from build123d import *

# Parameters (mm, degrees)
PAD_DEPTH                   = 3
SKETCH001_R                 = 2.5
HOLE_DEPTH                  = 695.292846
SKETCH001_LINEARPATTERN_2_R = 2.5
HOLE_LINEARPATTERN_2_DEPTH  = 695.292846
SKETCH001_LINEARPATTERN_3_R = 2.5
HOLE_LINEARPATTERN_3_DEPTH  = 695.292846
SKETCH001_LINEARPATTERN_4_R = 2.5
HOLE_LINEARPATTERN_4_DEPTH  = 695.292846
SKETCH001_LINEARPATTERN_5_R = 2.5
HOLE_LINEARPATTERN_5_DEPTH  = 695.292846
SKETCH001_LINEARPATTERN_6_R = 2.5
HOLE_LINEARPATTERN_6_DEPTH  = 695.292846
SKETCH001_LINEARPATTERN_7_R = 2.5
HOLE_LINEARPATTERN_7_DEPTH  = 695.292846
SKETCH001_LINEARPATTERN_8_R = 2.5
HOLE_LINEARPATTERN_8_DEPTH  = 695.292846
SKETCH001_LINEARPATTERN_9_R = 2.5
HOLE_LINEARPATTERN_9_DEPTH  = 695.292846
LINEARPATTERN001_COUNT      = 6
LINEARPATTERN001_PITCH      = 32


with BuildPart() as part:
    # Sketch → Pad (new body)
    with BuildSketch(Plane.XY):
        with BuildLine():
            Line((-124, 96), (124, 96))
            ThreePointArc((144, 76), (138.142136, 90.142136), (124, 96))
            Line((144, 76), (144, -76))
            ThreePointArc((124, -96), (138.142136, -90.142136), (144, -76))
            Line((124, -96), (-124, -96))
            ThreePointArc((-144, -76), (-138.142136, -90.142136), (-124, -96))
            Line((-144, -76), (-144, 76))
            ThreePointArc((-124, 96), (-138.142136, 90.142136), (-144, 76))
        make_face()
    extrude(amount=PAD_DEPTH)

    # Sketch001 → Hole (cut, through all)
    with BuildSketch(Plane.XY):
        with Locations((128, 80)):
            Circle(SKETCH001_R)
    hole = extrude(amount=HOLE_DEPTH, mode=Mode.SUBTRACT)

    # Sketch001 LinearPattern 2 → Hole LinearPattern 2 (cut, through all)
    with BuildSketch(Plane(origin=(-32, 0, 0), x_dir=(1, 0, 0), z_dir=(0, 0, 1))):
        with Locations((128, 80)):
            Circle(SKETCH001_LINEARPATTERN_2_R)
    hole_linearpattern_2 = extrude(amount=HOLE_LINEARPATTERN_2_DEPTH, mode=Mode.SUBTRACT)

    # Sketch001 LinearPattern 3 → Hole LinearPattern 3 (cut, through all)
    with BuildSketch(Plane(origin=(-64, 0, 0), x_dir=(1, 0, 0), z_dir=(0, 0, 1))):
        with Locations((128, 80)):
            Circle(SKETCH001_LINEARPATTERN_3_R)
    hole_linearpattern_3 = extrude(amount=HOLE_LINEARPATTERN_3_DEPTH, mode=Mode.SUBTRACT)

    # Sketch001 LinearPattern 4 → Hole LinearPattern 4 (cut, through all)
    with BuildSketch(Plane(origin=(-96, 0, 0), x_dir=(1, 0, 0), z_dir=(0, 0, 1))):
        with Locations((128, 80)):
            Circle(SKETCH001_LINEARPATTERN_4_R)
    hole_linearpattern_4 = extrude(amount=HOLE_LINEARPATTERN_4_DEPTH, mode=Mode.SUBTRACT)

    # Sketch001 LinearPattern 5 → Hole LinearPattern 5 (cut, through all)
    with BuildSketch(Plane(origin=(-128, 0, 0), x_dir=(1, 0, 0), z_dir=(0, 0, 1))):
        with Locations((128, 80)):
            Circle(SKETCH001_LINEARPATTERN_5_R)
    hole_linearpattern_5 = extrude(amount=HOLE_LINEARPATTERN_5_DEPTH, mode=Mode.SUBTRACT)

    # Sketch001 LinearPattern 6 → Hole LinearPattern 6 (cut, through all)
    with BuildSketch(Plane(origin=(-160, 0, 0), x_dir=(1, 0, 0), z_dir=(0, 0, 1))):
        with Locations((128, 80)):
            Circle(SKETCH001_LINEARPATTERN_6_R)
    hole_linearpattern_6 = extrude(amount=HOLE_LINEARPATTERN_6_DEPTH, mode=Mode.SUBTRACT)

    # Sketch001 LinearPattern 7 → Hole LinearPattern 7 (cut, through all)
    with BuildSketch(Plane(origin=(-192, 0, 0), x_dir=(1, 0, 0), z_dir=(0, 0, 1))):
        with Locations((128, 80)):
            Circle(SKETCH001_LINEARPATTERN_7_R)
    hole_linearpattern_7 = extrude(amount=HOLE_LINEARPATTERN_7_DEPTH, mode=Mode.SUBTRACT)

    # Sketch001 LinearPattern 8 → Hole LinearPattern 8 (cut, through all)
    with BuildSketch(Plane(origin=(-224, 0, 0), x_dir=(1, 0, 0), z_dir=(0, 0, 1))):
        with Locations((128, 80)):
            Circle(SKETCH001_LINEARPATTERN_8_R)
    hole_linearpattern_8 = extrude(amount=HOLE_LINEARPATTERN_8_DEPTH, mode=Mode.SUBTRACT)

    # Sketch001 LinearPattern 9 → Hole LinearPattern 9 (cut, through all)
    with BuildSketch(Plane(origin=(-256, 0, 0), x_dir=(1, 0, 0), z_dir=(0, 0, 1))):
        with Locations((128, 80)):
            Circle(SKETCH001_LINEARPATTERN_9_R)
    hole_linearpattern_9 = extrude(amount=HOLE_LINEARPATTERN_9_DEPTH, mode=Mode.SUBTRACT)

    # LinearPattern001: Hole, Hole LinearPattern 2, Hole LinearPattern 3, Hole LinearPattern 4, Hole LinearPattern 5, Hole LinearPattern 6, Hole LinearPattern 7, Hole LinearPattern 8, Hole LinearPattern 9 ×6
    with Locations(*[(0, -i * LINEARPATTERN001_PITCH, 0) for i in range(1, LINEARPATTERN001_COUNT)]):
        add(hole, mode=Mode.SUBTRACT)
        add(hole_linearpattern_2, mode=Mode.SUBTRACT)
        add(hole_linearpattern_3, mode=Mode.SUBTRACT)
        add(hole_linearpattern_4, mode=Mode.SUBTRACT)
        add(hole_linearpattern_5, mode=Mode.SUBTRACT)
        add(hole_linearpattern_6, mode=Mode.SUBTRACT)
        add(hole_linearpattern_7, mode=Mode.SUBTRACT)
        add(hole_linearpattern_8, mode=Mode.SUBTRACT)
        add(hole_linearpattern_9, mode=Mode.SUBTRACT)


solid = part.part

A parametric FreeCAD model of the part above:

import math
import FreeCAD as App
import Part
import Sketcher
from FreeCAD import Vector
Q = App.Units.Quantity

doc = App.newDocument("Part")
params = doc.addObject("Spreadsheet::Sheet", "Params")
for row, (alias, value) in enumerate([
    ("sketch1_radius", "19.999999 mm"),
    ("sketch1_width", "248 mm"),
    ("sketch1_height", "152 mm"),
    ("pad1_length", "3 mm"),
    ("sketch2_diameter", "5 mm"),
    ("sketch3_diameter", "5 mm"),
    ("sketch4_diameter", "5 mm"),
    ("sketch5_diameter", "5 mm"),
    ("sketch6_diameter", "5 mm"),
    ("sketch7_diameter", "5 mm"),
    ("sketch8_diameter", "5 mm"),
    ("sketch9_diameter", "5 mm"),
    ("sketch10_diameter", "5 mm"),
    ("linearpattern_pitch", "32 mm"),
], start=1):
    params.set(f"A{row}", alias)
    params.set(f"B{row}", "=" + value)
    params.setAlias(f"B{row}", alias)

body = doc.addObject("PartDesign::Body", "Body")

# Sketch on XY plane
sketch1 = body.newObject("Sketcher::SketchObject", "Sketch")
sketch1.AttachmentSupport = (doc.getObject("XY_Plane"), [""])
sketch1.MapMode = "FlatFace"
sketch1.addGeometry(Part.LineSegment(Vector(124, 96, 0), Vector(-124, 96, 0)), False)
sketch1.addGeometry(Part.ArcOfCircle(Part.Circle(Vector(-124, 76, 0), Vector(0, 0, 1), 20), math.radians(90), math.radians(180)), False)
sketch1.addGeometry(Part.LineSegment(Vector(-144, 76, 0), Vector(-144, -76, 0)), False)
sketch1.addGeometry(Part.ArcOfCircle(Part.Circle(Vector(-124, -76, 0), Vector(0, 0, 1), 20), math.radians(180), math.radians(270)), False)
sketch1.addGeometry(Part.LineSegment(Vector(-124, -96, 0), Vector(124, -96, 0)), False)
sketch1.addGeometry(Part.ArcOfCircle(Part.Circle(Vector(124, -76, 0), Vector(0, 0, 1), 20), math.radians(-90), math.radians(0)), False)
sketch1.addGeometry(Part.LineSegment(Vector(144, -76, 0), Vector(144, 76, 0)), False)
sketch1.addGeometry(Part.ArcOfCircle(Part.Circle(Vector(124, 76, 0), Vector(0, 0, 1), 20), math.radians(0), math.radians(90)), False)
sketch1.addConstraint(Sketcher.Constraint("Tangent", 0, 2, 1, 1))
sketch1.addConstraint(Sketcher.Constraint("Tangent", 1, 2, 2, 1))
sketch1.addConstraint(Sketcher.Constraint("Tangent", 2, 2, 3, 1))
sketch1.addConstraint(Sketcher.Constraint("Tangent", 3, 2, 4, 1))
sketch1.addConstraint(Sketcher.Constraint("Tangent", 4, 2, 5, 1))
sketch1.addConstraint(Sketcher.Constraint("Tangent", 5, 2, 6, 1))
sketch1.addConstraint(Sketcher.Constraint("Tangent", 6, 2, 7, 1))
sketch1.addConstraint(Sketcher.Constraint("Tangent", 7, 2, 0, 1))
sketch1.addConstraint(Sketcher.Constraint("Horizontal", 0))
sketch1.addConstraint(Sketcher.Constraint("Vertical", 2))
sketch1.addConstraint(Sketcher.Constraint("Horizontal", 4))
sketch1.addConstraint(Sketcher.Constraint("Vertical", 6))
sketch1.addConstraint(Sketcher.Constraint("Equal", 1, 3))
sketch1.addConstraint(Sketcher.Constraint("Equal", 3, 5))
sketch1.addConstraint(Sketcher.Constraint("Equal", 5, 7))
sketch1.addConstraint(Sketcher.Constraint("Symmetric", 1, 3, 5, 3, -1, 1))
sketch1.addConstraint(Sketcher.Constraint("Radius", 1, Q("19.999999 mm")))
sketch1.addConstraint(Sketcher.Constraint("DistanceX", 0, 2, 0, 1, Q("248 mm")))
sketch1.addConstraint(Sketcher.Constraint("DistanceY", 2, 2, 2, 1, Q("152 mm")))
sketch1.setExpression("Constraints[16]", "Params.sketch1_radius")
sketch1.setExpression("Constraints[17]", "Params.sketch1_width")
sketch1.setExpression("Constraints[18]", "Params.sketch1_height")
pad1 = body.newObject("PartDesign::Pad", "Pad")
pad1.Profile = sketch1
pad1.setExpression("Length", "Params.pad1_length")

# Sketch on XY plane
sketch2 = body.newObject("Sketcher::SketchObject", "Sketch001")
sketch2.AttachmentSupport = (doc.getObject("XY_Plane"), [""])
sketch2.MapMode = "FlatFace"
sketch2.addGeometry(Part.Circle(Vector(128, 80, 0), Vector(0, 0, 1), 2.5), False)
sketch2.addConstraint(Sketcher.Constraint("Diameter", 0, Q("5 mm")))
sketch2.addConstraint(Sketcher.Constraint("DistanceX", -1, 1, 0, 3, Q("128 mm")))
sketch2.addConstraint(Sketcher.Constraint("DistanceY", -1, 1, 0, 3, Q("80 mm")))
sketch2.setExpression("Constraints[0]", "Params.sketch2_diameter")
pocket1 = body.newObject("PartDesign::Pocket", "Pocket")
pocket1.Profile = sketch2
pocket1.Type = "ThroughAll"
pocket1.Reversed = True

# Sketch on XY plane
sketch3 = body.newObject("Sketcher::SketchObject", "Sketch002")
sketch3.AttachmentSupport = (doc.getObject("XY_Plane"), [""])
sketch3.MapMode = "FlatFace"
sketch3.addGeometry(Part.Circle(Vector(96, 80, 0), Vector(0, 0, 1), 2.5), False)
sketch3.addConstraint(Sketcher.Constraint("Diameter", 0, Q("5 mm")))
sketch3.addConstraint(Sketcher.Constraint("DistanceX", -1, 1, 0, 3, Q("96 mm")))
sketch3.addConstraint(Sketcher.Constraint("DistanceY", -1, 1, 0, 3, Q("80 mm")))
sketch3.setExpression("Constraints[0]", "Params.sketch3_diameter")
pocket2 = body.newObject("PartDesign::Pocket", "Pocket001")
pocket2.Profile = sketch3
pocket2.Type = "ThroughAll"
pocket2.Reversed = True

# Sketch on XY plane
sketch4 = body.newObject("Sketcher::SketchObject", "Sketch003")
sketch4.AttachmentSupport = (doc.getObject("XY_Plane"), [""])
sketch4.MapMode = "FlatFace"
sketch4.addGeometry(Part.Circle(Vector(64, 80, 0), Vector(0, 0, 1), 2.5), False)
sketch4.addConstraint(Sketcher.Constraint("Diameter", 0, Q("5 mm")))
sketch4.addConstraint(Sketcher.Constraint("DistanceX", -1, 1, 0, 3, Q("64 mm")))
sketch4.addConstraint(Sketcher.Constraint("DistanceY", -1, 1, 0, 3, Q("80 mm")))
sketch4.setExpression("Constraints[0]", "Params.sketch4_diameter")
pocket3 = body.newObject("PartDesign::Pocket", "Pocket002")
pocket3.Profile = sketch4
pocket3.Type = "ThroughAll"
pocket3.Reversed = True

# Sketch on XY plane
sketch5 = body.newObject("Sketcher::SketchObject", "Sketch004")
sketch5.AttachmentSupport = (doc.getObject("XY_Plane"), [""])
sketch5.MapMode = "FlatFace"
sketch5.addGeometry(Part.Circle(Vector(32, 80, 0), Vector(0, 0, 1), 2.5), False)
sketch5.addConstraint(Sketcher.Constraint("Diameter", 0, Q("5 mm")))
sketch5.addConstraint(Sketcher.Constraint("DistanceX", -1, 1, 0, 3, Q("32 mm")))
sketch5.addConstraint(Sketcher.Constraint("DistanceY", -1, 1, 0, 3, Q("80 mm")))
sketch5.setExpression("Constraints[0]", "Params.sketch5_diameter")
pocket4 = body.newObject("PartDesign::Pocket", "Pocket003")
pocket4.Profile = sketch5
pocket4.Type = "ThroughAll"
pocket4.Reversed = True

# Sketch on XY plane
sketch6 = body.newObject("Sketcher::SketchObject", "Sketch005")
sketch6.AttachmentSupport = (doc.getObject("XY_Plane"), [""])
sketch6.MapMode = "FlatFace"
sketch6.addGeometry(Part.Circle(Vector(0, 80, 0), Vector(0, 0, 1), 2.5), False)
sketch6.addConstraint(Sketcher.Constraint("PointOnObject", 0, 3, -2))
sketch6.addConstraint(Sketcher.Constraint("Diameter", 0, Q("5 mm")))
sketch6.addConstraint(Sketcher.Constraint("DistanceY", -1, 1, 0, 3, Q("80 mm")))
sketch6.setExpression("Constraints[1]", "Params.sketch6_diameter")
pocket5 = body.newObject("PartDesign::Pocket", "Pocket004")
pocket5.Profile = sketch6
pocket5.Type = "ThroughAll"
pocket5.Reversed = True

# Sketch on XY plane
sketch7 = body.newObject("Sketcher::SketchObject", "Sketch006")
sketch7.AttachmentSupport = (doc.getObject("XY_Plane"), [""])
sketch7.MapMode = "FlatFace"
sketch7.addGeometry(Part.Circle(Vector(-32, 80, 0), Vector(0, 0, 1), 2.5), False)
sketch7.addConstraint(Sketcher.Constraint("Diameter", 0, Q("5 mm")))
sketch7.addConstraint(Sketcher.Constraint("DistanceX", 0, 3, -1, 1, Q("32 mm")))
sketch7.addConstraint(Sketcher.Constraint("DistanceY", -1, 1, 0, 3, Q("80 mm")))
sketch7.setExpression("Constraints[0]", "Params.sketch7_diameter")
pocket6 = body.newObject("PartDesign::Pocket", "Pocket005")
pocket6.Profile = sketch7
pocket6.Type = "ThroughAll"
pocket6.Reversed = True

# Sketch on XY plane
sketch8 = body.newObject("Sketcher::SketchObject", "Sketch007")
sketch8.AttachmentSupport = (doc.getObject("XY_Plane"), [""])
sketch8.MapMode = "FlatFace"
sketch8.addGeometry(Part.Circle(Vector(-64, 80, 0), Vector(0, 0, 1), 2.5), False)
sketch8.addConstraint(Sketcher.Constraint("Diameter", 0, Q("5 mm")))
sketch8.addConstraint(Sketcher.Constraint("DistanceX", 0, 3, -1, 1, Q("64 mm")))
sketch8.addConstraint(Sketcher.Constraint("DistanceY", -1, 1, 0, 3, Q("80 mm")))
sketch8.setExpression("Constraints[0]", "Params.sketch8_diameter")
pocket7 = body.newObject("PartDesign::Pocket", "Pocket006")
pocket7.Profile = sketch8
pocket7.Type = "ThroughAll"
pocket7.Reversed = True

# Sketch on XY plane
sketch9 = body.newObject("Sketcher::SketchObject", "Sketch008")
sketch9.AttachmentSupport = (doc.getObject("XY_Plane"), [""])
sketch9.MapMode = "FlatFace"
sketch9.addGeometry(Part.Circle(Vector(-96, 80, 0), Vector(0, 0, 1), 2.5), False)
sketch9.addConstraint(Sketcher.Constraint("Diameter", 0, Q("5 mm")))
sketch9.addConstraint(Sketcher.Constraint("DistanceX", 0, 3, -1, 1, Q("96 mm")))
sketch9.addConstraint(Sketcher.Constraint("DistanceY", -1, 1, 0, 3, Q("80 mm")))
sketch9.setExpression("Constraints[0]", "Params.sketch9_diameter")
pocket8 = body.newObject("PartDesign::Pocket", "Pocket007")
pocket8.Profile = sketch9
pocket8.Type = "ThroughAll"
pocket8.Reversed = True

# Sketch on XY plane
sketch10 = body.newObject("Sketcher::SketchObject", "Sketch009")
sketch10.AttachmentSupport = (doc.getObject("XY_Plane"), [""])
sketch10.MapMode = "FlatFace"
sketch10.addGeometry(Part.Circle(Vector(-128, 80, 0), Vector(0, 0, 1), 2.5), False)
sketch10.addConstraint(Sketcher.Constraint("Diameter", 0, Q("5 mm")))
sketch10.addConstraint(Sketcher.Constraint("DistanceX", 0, 3, -1, 1, Q("128 mm")))
sketch10.addConstraint(Sketcher.Constraint("DistanceY", -1, 1, 0, 3, Q("80 mm")))
sketch10.setExpression("Constraints[0]", "Params.sketch10_diameter")
pocket9 = body.newObject("PartDesign::Pocket", "Pocket008")
pocket9.Profile = sketch10
pocket9.Type = "ThroughAll"
pocket9.Reversed = True
doc.recompute()

linearpattern = body.newObject("PartDesign::LinearPattern", "LinearPattern")
linearpattern.Originals = [pocket1, pocket2, pocket3, pocket4, pocket5, pocket6, pocket7, pocket8, pocket9]
linearpattern.Direction = (doc.getObject("Y_Axis"), [""])
linearpattern.Mode = "offset"
linearpattern.setExpression("Offset", "Params.linearpattern_pitch")
linearpattern.Occurrences = 6
linearpattern.Reversed = True
body.Tip = linearpattern

doc.recompute()
